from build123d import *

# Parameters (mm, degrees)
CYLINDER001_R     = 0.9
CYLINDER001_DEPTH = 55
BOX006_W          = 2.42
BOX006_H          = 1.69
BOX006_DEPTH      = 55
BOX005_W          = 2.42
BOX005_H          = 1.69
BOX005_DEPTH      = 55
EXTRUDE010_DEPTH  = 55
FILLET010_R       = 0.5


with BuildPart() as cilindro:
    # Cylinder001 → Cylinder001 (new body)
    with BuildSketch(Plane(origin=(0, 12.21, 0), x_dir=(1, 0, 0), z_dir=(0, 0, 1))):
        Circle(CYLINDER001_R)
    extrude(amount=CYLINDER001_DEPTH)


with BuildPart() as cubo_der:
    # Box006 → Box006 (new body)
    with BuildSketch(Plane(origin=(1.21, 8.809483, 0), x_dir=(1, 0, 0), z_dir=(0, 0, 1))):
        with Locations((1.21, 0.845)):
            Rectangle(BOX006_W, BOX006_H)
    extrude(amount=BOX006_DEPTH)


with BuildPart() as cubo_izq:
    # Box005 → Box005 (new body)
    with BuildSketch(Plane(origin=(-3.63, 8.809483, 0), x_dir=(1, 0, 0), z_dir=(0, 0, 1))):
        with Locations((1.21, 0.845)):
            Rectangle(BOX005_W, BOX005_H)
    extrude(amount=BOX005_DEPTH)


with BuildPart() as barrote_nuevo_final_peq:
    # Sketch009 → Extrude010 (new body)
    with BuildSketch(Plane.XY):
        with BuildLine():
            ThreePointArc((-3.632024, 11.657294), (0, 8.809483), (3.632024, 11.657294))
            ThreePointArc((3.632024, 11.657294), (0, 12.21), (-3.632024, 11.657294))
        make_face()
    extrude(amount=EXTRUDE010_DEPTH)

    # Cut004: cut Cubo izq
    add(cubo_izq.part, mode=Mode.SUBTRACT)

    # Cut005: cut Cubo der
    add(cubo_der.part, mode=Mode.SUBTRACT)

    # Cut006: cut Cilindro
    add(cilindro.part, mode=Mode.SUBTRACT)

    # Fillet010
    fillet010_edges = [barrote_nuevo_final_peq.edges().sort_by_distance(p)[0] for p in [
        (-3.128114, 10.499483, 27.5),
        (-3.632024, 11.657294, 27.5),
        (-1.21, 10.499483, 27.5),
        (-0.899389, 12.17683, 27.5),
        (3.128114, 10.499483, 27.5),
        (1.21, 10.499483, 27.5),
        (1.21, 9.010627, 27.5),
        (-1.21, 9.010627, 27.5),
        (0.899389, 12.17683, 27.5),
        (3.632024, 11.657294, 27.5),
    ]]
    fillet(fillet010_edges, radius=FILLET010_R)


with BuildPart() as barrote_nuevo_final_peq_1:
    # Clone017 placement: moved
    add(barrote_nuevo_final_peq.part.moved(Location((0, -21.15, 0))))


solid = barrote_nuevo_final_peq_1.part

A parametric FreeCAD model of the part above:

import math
import FreeCAD as App
import Part
import Sketcher
from FreeCAD import Vector
Q = App.Units.Quantity


def edges_at(feature, points):
    """Names of the edges that pass closest to the given points."""
    edges = feature.Shape.Edges
    near = lambda p: min(range(len(edges)), key=lambda i: edges[i].distToShape(Part.Vertex(*p))[0])
    return sorted({f"Edge{near(p) + 1}" for p in points})


def add_polygon(sketch, points):
    """Adds a closed chain of lines whose ends are joined by coincident constraints."""
    first, n = sketch.GeometryCount, len(points)
    for a, b in zip(points, points[1:] + points[:1]):
        sketch.addGeometry(Part.LineSegment(App.Vector(*a, 0), App.Vector(*b, 0)), False)
    for i in range(n):
        sketch.addConstraint(Sketcher.Constraint("Coincident", first + i, 2, first + (i + 1) % n, 1))

doc = App.newDocument("Part")
body = doc.addObject("PartDesign::Body", "Body")

# Sketch on XY plane
sketch1 = doc.addObject("Sketcher::SketchObject", "Sketch")
body.addObject(sketch1)
sketch1.AttachmentSupport = (doc.XY_Plane, [""])
sketch1.MapMode = "FlatFace"
sketch1.addGeometry(Part.Circle(Vector(0, 12.2, 0), Vector(0, 0, 1), 0.9), False)
sketch1.addConstraint([
    Sketcher.Constraint("PointOnObject", 0, 3, -2),
    Sketcher.Constraint("Diameter", 0, Q("1.8 mm")),
    Sketcher.Constraint("DistanceY", -1, 1, 0, 3, Q("12.21 mm")),
])
pad1 = doc.addObject("PartDesign::Pad", "Pad")
body.addObject(pad1)
pad1.Profile = sketch1
pad1.Length = 55
body2 = doc.addObject("PartDesign::Body", "Body001")

# Sketch on XY plane
sketch2 = doc.addObject("Sketcher::SketchObject", "Sketch001")
body2.addObject(sketch2)
sketch2.AttachmentSupport = (doc.getObject("XY_Plane001"), [""])
sketch2.MapMode = "FlatFace"
add_polygon(sketch2, [(1.2, 10.5), (1.2, 8.8), (3.6, 8.8), (3.6, 10.5)])  # lines 0-3
sketch2.addConstraint([
    Sketcher.Constraint("Vertical", 0),
    Sketcher.Constraint("Horizontal", 1),
    Sketcher.Constraint("Vertical", 2),
    Sketcher.Constraint("Horizontal", 3),
    Sketcher.Constraint("DistanceX", 1, 1, 1, 2, Q("2.42 mm")),
    Sketcher.Constraint("DistanceY", 0, 2, 0, 1, Q("1.69 mm")),
    Sketcher.Constraint("DistanceX", -1, 1, 0, 2, Q("1.21 mm")),
    Sketcher.Constraint("DistanceY", -1, 1, 0, 2, Q("8.809483 mm")),
])
pad2 = doc.addObject("PartDesign::Pad", "Pad001")
body2.addObject(pad2)
pad2.Profile = sketch2
pad2.Length = 55
body3 = doc.addObject("PartDesign::Body", "Body002")

# Sketch on XY plane
sketch3 = doc.addObject("Sketcher::SketchObject", "Sketch002")
body3.addObject(sketch3)
sketch3.AttachmentSupport = (doc.getObject("XY_Plane002"), [""])
sketch3.MapMode = "FlatFace"
add_polygon(sketch3, [(-3.6, 10.5), (-3.6, 8.8), (-1.2, 8.8), (-1.2, 10.5)])  # lines 0-3
sketch3.addConstraint([
    Sketcher.Constraint("Vertical", 0),
    Sketcher.Constraint("Horizontal", 1),
    Sketcher.Constraint("Vertical", 2),
    Sketcher.Constraint("Horizontal", 3),
    Sketcher.Constraint("DistanceX", 1, 1, 1, 2, Q("2.42 mm")),
    Sketcher.Constraint("DistanceY", 0, 2, 0, 1, Q("1.69 mm")),
    Sketcher.Constraint("DistanceX", 0, 2, -1, 1, Q("3.63 mm")),
    Sketcher.Constraint("DistanceY", -1, 1, 0, 2, Q("8.809483 mm")),
])
pad3 = doc.addObject("PartDesign::Pad", "Pad002")
body3.addObject(pad3)
pad3.Profile = sketch3
pad3.Length = 55
body4 = doc.addObject("PartDesign::Body", "Body003")

# Sketch on XY plane
sketch4 = doc.addObject("Sketcher::SketchObject", "Sketch003")
body4.addObject(sketch4)
sketch4.AttachmentSupport = (doc.getObject("XY_Plane003"), [""])
sketch4.MapMode = "FlatFace"
sketch4.addGeometry([
    Part.ArcOfCircle(Part.Circle(Vector(0, 12.5, 0), Vector(0, 0, 1), 3.7), math.radians(-166), math.radians(-14)),
    Part.ArcOfCircle(Part.Circle(Vector(0, 0, 0), Vector(0, 0, 1), 12.2), math.radians(73), math.radians(107)),
], False)
sketch4.addConstraint([
    Sketcher.Constraint("Coincident", 0, 1, 1, 2),
    Sketcher.Constraint("Coincident", 1, 1, 0, 2),
    Sketcher.Constraint("Coincident", 1, 3, -1, 1),
    Sketcher.Constraint("PointOnObject", 0, 3, -2),
    Sketcher.Constraint("Radius", 0, Q("3.74 mm")),
    Sketcher.Constraint("Radius", 1, Q("12.210002 mm")),
    Sketcher.Constraint("DistanceY", 0, 1, 0, 3, Q("0.892189 mm")),
])
pad4 = doc.addObject("PartDesign::Pad", "Pad003")
body4.addObject(pad4)
pad4.Profile = sketch4
pad4.Length = 55
doc.recompute()

boolean = doc.addObject("PartDesign::Boolean", "Boolean")
body4.addObject(boolean)
boolean.Type = "Cut"
boolean.addObjects([body3])
doc.recompute()

boolean2 = doc.addObject("PartDesign::Boolean", "Boolean001")
body4.addObject(boolean2)
boolean2.Type = "Cut"
boolean2.addObjects([body2])
doc.recompute()

boolean3 = doc.addObject("PartDesign::Boolean", "Boolean002")
body4.addObject(boolean3)
boolean3.Type = "Cut"
boolean3.addObjects([body])
doc.recompute()

fillet = doc.addObject("PartDesign::Fillet", "Fillet")
body4.addObject(fillet)
fillet.Base = (boolean3, edges_at(boolean3, [
    (-3.128, 10.499, 27.5),
    (-3.632, 11.657, 27.5),
    (-1.21, 10.499, 27.5),
    (-0.899, 12.177, 27.5),
    (3.128, 10.499, 27.5),
    (1.21, 10.499, 27.5),
    (1.21, 9.011, 27.5),
    (-1.21, 9.011, 27.5),
    (0.899, 12.177, 27.5),
    (3.632, 11.657, 27.5),
]))
fillet.Radius = 0.5
body5 = doc.addObject("PartDesign::Body", "Body004")
doc.recompute()

body4.Placement = App.Placement(Vector(0, -21.15, 0), App.Rotation(Vector(0, 0, 1), 0))
boolean4 = doc.addObject("PartDesign::Boolean", "Boolean003")
body5.addObject(boolean4)
boolean4.Type = "Fuse"
boolean4.addObjects([body4])

doc.recompute()
